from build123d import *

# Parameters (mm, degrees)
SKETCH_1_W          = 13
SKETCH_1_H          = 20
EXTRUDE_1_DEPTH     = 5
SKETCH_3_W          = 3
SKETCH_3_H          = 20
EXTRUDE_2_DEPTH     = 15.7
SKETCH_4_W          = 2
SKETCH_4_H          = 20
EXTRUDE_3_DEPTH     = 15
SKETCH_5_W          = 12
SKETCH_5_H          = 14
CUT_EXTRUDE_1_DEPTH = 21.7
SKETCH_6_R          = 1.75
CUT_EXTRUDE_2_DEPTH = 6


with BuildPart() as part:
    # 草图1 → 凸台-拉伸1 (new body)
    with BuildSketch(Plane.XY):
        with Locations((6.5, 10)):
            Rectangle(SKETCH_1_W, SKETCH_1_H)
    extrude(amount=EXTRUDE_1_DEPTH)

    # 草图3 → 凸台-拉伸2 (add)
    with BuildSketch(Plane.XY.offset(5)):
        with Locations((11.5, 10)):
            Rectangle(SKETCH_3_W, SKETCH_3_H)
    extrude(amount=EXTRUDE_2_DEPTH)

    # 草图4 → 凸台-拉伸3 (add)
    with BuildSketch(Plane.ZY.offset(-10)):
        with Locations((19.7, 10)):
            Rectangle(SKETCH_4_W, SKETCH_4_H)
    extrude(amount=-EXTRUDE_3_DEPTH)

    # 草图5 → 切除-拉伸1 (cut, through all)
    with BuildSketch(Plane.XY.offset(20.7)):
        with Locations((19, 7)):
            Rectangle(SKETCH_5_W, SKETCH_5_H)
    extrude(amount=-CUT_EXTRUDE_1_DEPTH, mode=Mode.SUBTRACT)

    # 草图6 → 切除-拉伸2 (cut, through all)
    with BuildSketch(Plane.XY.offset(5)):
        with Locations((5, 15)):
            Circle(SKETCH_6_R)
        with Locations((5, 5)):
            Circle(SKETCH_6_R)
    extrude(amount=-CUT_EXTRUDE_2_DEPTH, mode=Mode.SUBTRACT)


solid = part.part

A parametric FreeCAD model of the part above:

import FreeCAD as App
import Part
import Sketcher

doc = App.newDocument("Part")
body = doc.addObject("PartDesign::Body", "Body")

# Sketch on XY plane
sketch1 = body.newObject("Sketcher::SketchObject", "Sketch")
sketch1.AttachmentSupport = (doc.getObject("XY_Plane"), [""])
sketch1.MapMode = "FlatFace"
sketch1.addGeometry(Part.LineSegment(App.Vector(0, 20, 0), App.Vector(0, 0, 0)), False)
sketch1.addGeometry(Part.LineSegment(App.Vector(0, 0, 0), App.Vector(13, 0, 0)), False)
sketch1.addGeometry(Part.LineSegment(App.Vector(13, 0, 0), App.Vector(13, 20, 0)), False)
sketch1.addGeometry(Part.LineSegment(App.Vector(13, 20, 0), App.Vector(0, 20, 0)), False)
sketch1.addConstraint(Sketcher.Constraint("Coincident", 0, 2, 1, 1))
sketch1.addConstraint(Sketcher.Constraint("Coincident", 1, 2, 2, 1))
sketch1.addConstraint(Sketcher.Constraint("Coincident", 2, 2, 3, 1))
sketch1.addConstraint(Sketcher.Constraint("Coincident", 3, 2, 0, 1))
sketch1.addConstraint(Sketcher.Constraint("Vertical", 0))
sketch1.addConstraint(Sketcher.Constraint("Horizontal", 1))
sketch1.addConstraint(Sketcher.Constraint("Vertical", 2))
sketch1.addConstraint(Sketcher.Constraint("Horizontal", 3))
sketch1.addConstraint(Sketcher.Constraint("Coincident", 0, 2, -1, 1))
sketch1.addConstraint(Sketcher.Constraint("DistanceX", 1, 1, 1, 2, 13.0))
sketch1.addConstraint(Sketcher.Constraint("DistanceY", 0, 2, 0, 1, 20.0))
pad1 = body.newObject("PartDesign::Pad", "Pad")
pad1.Profile = sketch1
pad1.Length = 5

# Sketch on XY plane
sketch2 = body.newObject("Sketcher::SketchObject", "Sketch001")
sketch2.AttachmentSupport = (doc.getObject("XY_Plane"), [""])
sketch2.MapMode = "FlatFace"
sketch2.AttachmentOffset = App.Placement(App.Vector(0, 0, 5), App.Rotation())
sketch2.addGeometry(Part.LineSegment(App.Vector(10, 20, 0), App.Vector(10, 0, 0)), False)
sketch2.addGeometry(Part.LineSegment(App.Vector(10, 0, 0), App.Vector(13, 0, 0)), False)
sketch2.addGeometry(Part.LineSegment(App.Vector(13, 0, 0), App.Vector(13, 20, 0)), False)
sketch2.addGeometry(Part.LineSegment(App.Vector(13, 20, 0), App.Vector(10, 20, 0)), False)
sketch2.addConstraint(Sketcher.Constraint("Coincident", 0, 2, 1, 1))
sketch2.addConstraint(Sketcher.Constraint("Coincident", 1, 2, 2, 1))
sketch2.addConstraint(Sketcher.Constraint("Coincident", 2, 2, 3, 1))
sketch2.addConstraint(Sketcher.Constraint("Coincident", 3, 2, 0, 1))
sketch2.addConstraint(Sketcher.Constraint("Vertical", 0))
sketch2.addConstraint(Sketcher.Constraint("Horizontal", 1))
sketch2.addConstraint(Sketcher.Constraint("Vertical", 2))
sketch2.addConstraint(Sketcher.Constraint("Horizontal", 3))
sketch2.addConstraint(Sketcher.Constraint("PointOnObject", 0, 2, -1))
sketch2.addConstraint(Sketcher.Constraint("DistanceX", 1, 1, 1, 2, 3.0))
sketch2.addConstraint(Sketcher.Constraint("DistanceY", 0, 2, 0, 1, 20.0))
sketch2.addConstraint(Sketcher.Constraint("DistanceX", -1, 1, 0, 2, 10.0))
pad2 = body.newObject("PartDesign::Pad", "Pad001")
pad2.Profile = sketch2
pad2.Length = 15.7

# Sketch on YZ plane
sketch3 = body.newObject("Sketcher::SketchObject", "Sketch002")
sketch3.AttachmentSupport = (doc.getObject("YZ_Plane"), [""])
sketch3.MapMode = "FlatFace"
sketch3.AttachmentOffset = App.Placement(App.Vector(0, 0, 10), App.Rotation())
sketch3.addGeometry(Part.LineSegment(App.Vector(20, 18.7, 0), App.Vector(0, 18.7, 0)), False)
sketch3.addGeometry(Part.LineSegment(App.Vector(0, 18.7, 0), App.Vector(0, 20.7, 0)), False)
sketch3.addGeometry(Part.LineSegment(App.Vector(0, 20.7, 0), App.Vector(20, 20.7, 0)), False)
sketch3.addGeometry(Part.LineSegment(App.Vector(20, 20.7, 0), App.Vector(20, 18.7, 0)), False)
sketch3.addConstraint(Sketcher.Constraint("Coincident", 0, 2, 1, 1))
sketch3.addConstraint(Sketcher.Constraint("Coincident", 1, 2, 2, 1))
sketch3.addConstraint(Sketcher.Constraint("Coincident", 2, 2, 3, 1))
sketch3.addConstraint(Sketcher.Constraint("Coincident", 3, 2, 0, 1))
sketch3.addConstraint(Sketcher.Constraint("Horizontal", 0))
sketch3.addConstraint(Sketcher.Constraint("Vertical", 1))
sketch3.addConstraint(Sketcher.Constraint("Horizontal", 2))
sketch3.addConstraint(Sketcher.Constraint("Vertical", 3))
sketch3.addConstraint(Sketcher.Constraint("PointOnObject", 0, 2, -2))
sketch3.addConstraint(Sketcher.Constraint("DistanceX", 0, 2, 0, 1, 20.0))
sketch3.addConstraint(Sketcher.Constraint("DistanceY", 1, 1, 1, 2, 2.0))
sketch3.addConstraint(Sketcher.Constraint("DistanceY", -1, 1, 0, 2, 18.7))
pad3 = body.newObject("PartDesign::Pad", "Pad002")
pad3.Profile = sketch3
pad3.Length = 15

# Sketch on XY plane
sketch4 = body.newObject("Sketcher::SketchObject", "Sketch003")
sketch4.AttachmentSupport = (doc.getObject("XY_Plane"), [""])
sketch4.MapMode = "FlatFace"
sketch4.AttachmentOffset = App.Placement(App.Vector(0, 0, 20.7), App.Rotation())
sketch4.addGeometry(Part.LineSegment(App.Vector(13, 14, 0), App.Vector(13, 0, 0)), False)
sketch4.addGeometry(Part.LineSegment(App.Vector(13, 0, 0), App.Vector(25, 0, 0)), False)
sketch4.addGeometry(Part.LineSegment(App.Vector(25, 0, 0), App.Vector(25, 14, 0)), False)
sketch4.addGeometry(Part.LineSegment(App.Vector(25, 14, 0), App.Vector(13, 14, 0)), False)
sketch4.addConstraint(Sketcher.Constraint("Coincident", 0, 2, 1, 1))
sketch4.addConstraint(Sketcher.Constraint("Coincident", 1, 2, 2, 1))
sketch4.addConstraint(Sketcher.Constraint("Coincident", 2, 2, 3, 1))
sketch4.addConstraint(Sketcher.Constraint("Coincident", 3, 2, 0, 1))
sketch4.addConstraint(Sketcher.Constraint("Vertical", 0))
sketch4.addConstraint(Sketcher.Constraint("Horizontal", 1))
sketch4.addConstraint(Sketcher.Constraint("Vertical", 2))
sketch4.addConstraint(Sketcher.Constraint("Horizontal", 3))
sketch4.addConstraint(Sketcher.Constraint("PointOnObject", 0, 2, -1))
sketch4.addConstraint(Sketcher.Constraint("DistanceX", 1, 1, 1, 2, 12.0))
sketch4.addConstraint(Sketcher.Constraint("DistanceY", 0, 2, 0, 1, 14.0))
sketch4.addConstraint(Sketcher.Constraint("DistanceX", -1, 1, 0, 2, 13.0))
pocket1 = body.newObject("PartDesign::Pocket", "Pocket")
pocket1.Profile = sketch4
pocket1.Type = "ThroughAll"

# Sketch on XY plane
sketch5 = body.newObject("Sketcher::SketchObject", "Sketch004")
sketch5.AttachmentSupport = (doc.getObject("XY_Plane"), [""])
sketch5.MapMode = "FlatFace"
sketch5.AttachmentOffset = App.Placement(App.Vector(0, 0, 5), App.Rotation())
sketch5.addGeometry(Part.Circle(App.Vector(5, 15, 0), App.Vector(0, 0, 1), 1.75), False)
sketch5.addGeometry(Part.Circle(App.Vector(5, 5, 0), App.Vector(0, 0, 1), 1.75), False)
sketch5.addConstraint(Sketcher.Constraint("Equal", 0, 1))
sketch5.addConstraint(Sketcher.Constraint("Vertical", 0, 3, 1, 3))
sketch5.addConstraint(Sketcher.Constraint("Diameter", 0, 3.5))
sketch5.addConstraint(Sketcher.Constraint("DistanceX", -1, 1, 0, 3, 5.0))
sketch5.addConstraint(Sketcher.Constraint("DistanceY", -1, 1, 0, 3, 15.0))
sketch5.addConstraint(Sketcher.Constraint("DistanceY", -1, 1, 1, 3, 5.0))
pocket2 = body.newObject("PartDesign::Pocket", "Pocket001")
pocket2.Profile = sketch5
pocket2.Type = "ThroughAll"

doc.recompute()
